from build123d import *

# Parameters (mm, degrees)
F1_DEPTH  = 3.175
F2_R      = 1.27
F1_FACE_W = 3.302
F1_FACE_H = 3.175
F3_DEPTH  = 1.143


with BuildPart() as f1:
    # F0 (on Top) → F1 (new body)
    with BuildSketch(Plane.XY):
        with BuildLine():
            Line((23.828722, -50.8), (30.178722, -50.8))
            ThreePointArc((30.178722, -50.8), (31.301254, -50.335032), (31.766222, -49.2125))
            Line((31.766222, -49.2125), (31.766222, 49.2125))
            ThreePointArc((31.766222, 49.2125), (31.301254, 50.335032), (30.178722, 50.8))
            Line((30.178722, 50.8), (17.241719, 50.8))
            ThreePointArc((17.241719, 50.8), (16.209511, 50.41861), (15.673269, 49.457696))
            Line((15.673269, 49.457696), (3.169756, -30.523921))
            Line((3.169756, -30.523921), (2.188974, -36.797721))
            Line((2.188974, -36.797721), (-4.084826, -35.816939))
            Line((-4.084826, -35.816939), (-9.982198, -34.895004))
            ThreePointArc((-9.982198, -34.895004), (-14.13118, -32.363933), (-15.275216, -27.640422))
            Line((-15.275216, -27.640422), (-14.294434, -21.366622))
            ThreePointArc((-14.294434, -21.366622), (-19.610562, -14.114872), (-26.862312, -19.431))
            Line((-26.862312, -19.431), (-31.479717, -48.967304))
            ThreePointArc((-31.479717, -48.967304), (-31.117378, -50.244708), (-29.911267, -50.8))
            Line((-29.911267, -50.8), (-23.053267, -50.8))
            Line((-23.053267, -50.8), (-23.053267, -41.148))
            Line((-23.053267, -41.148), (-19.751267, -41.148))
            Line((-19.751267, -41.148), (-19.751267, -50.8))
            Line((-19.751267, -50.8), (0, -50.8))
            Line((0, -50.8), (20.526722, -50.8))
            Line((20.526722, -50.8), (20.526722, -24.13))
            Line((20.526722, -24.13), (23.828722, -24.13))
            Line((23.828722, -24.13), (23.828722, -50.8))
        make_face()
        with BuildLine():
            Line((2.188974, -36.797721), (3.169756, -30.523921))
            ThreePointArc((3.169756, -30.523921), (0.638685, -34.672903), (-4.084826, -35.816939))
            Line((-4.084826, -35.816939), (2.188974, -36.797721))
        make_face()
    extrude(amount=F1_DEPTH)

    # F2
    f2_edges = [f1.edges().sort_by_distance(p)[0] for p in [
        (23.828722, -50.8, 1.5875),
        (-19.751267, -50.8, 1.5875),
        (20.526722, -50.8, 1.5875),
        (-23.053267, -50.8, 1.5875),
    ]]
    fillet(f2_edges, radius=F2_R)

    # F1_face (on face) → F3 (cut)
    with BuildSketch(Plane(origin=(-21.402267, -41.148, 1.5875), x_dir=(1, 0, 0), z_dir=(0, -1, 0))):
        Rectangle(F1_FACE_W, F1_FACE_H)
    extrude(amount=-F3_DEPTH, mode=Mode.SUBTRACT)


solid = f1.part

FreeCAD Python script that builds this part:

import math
import FreeCAD as App
import Part
import Sketcher

V = App.Vector
Q = App.Units.Quantity


def edges_at(feature, points):
    """Names of the edges that pass closest to the given points."""
    edges = feature.Shape.Edges
    near = lambda p: min(range(len(edges)), key=lambda i: edges[i].distToShape(Part.Vertex(*p))[0])
    return sorted({f"Edge{near(p) + 1}" for p in points})

doc = App.newDocument("Part")
body = doc.addObject("PartDesign::Body", "Body")

# Sketch on XY plane
sketch1 = body.newObject("Sketcher::SketchObject", "Sketch")
sketch1.AttachmentSupport = (doc.getObject("XY_Plane"), [""])
sketch1.MapMode = "FlatFace"
sketch1.addGeometry(Part.LineSegment(V(23.8, -50.8, 0), V(30.2, -50.8, 0)), False)
sketch1.addGeometry(Part.ArcOfCircle(Part.Circle(V(30.2, -49.2, 0), V(0, 0, 1), 1.6), math.radians(-90), math.radians(0)), False)
sketch1.addGeometry(Part.LineSegment(V(31.8, -49.2, 0), V(31.8, 49.2, 0)), False)
sketch1.addGeometry(Part.ArcOfCircle(Part.Circle(V(30.2, 49.2, 0), V(0, 0, 1), 1.6), math.radians(0), math.radians(90)), False)
sketch1.addGeometry(Part.LineSegment(V(30.2, 50.8, 0), V(17.2, 50.8, 0)), False)
sketch1.addGeometry(Part.ArcOfCircle(Part.Circle(V(17.2, 49.2, 0), V(0, 0, 1), 1.6), math.radians(90), math.radians(171)), False)
sketch1.addGeometry(Part.LineSegment(V(15.7, 49.5, 0), V(3.2, -30.5, 0)), False)
sketch1.addGeometry(Part.ArcOfCircle(Part.Circle(V(-3.1, -29.5, 0), V(0, 0, 1), 6.4), math.radians(-99), math.radians(-9)), False)
sketch1.addGeometry(Part.LineSegment(V(-4.1, -35.8, 0), V(-10, -34.9, 0)), False)
sketch1.addGeometry(Part.ArcOfCircle(Part.Circle(V(-9, -28.6, 0), V(0, 0, 1), 6.4), math.radians(171), math.radians(261)), False)
sketch1.addGeometry(Part.LineSegment(V(-15.3, -27.6, 0), V(-14.3, -21.4, 0)), False)
sketch1.addGeometry(Part.ArcOfCircle(Part.Circle(V(-20.6, -20.4, 0), V(0, 0, 1), 6.4), math.radians(-9), math.radians(171)), False)
sketch1.addGeometry(Part.LineSegment(V(-26.9, -19.4, 0), V(-31.5, -49, 0)), False)
sketch1.addGeometry(Part.ArcOfCircle(Part.Circle(V(-29.9, -49.2, 0), V(0, 0, 1), 1.6), math.radians(171), math.radians(270)), False)
sketch1.addGeometry(Part.LineSegment(V(-29.9, -50.8, 0), V(-23.1, -50.8, 0)), False)
sketch1.addGeometry(Part.LineSegment(V(-23.1, -50.8, 0), V(-23.1, -41.1, 0)), False)
sketch1.addGeometry(Part.LineSegment(V(-23.1, -41.1, 0), V(-19.8, -41.1, 0)), False)
sketch1.addGeometry(Part.LineSegment(V(-19.8, -41.1, 0), V(-19.8, -50.8, 0)), False)
sketch1.addGeometry(Part.LineSegment(V(-19.8, -50.8, 0), V(20.5, -50.8, 0)), False)
sketch1.addGeometry(Part.LineSegment(V(20.5, -50.8, 0), V(20.5, -24.1, 0)), False)
sketch1.addGeometry(Part.LineSegment(V(20.5, -24.1, 0), V(23.8, -24.1, 0)), False)
sketch1.addGeometry(Part.LineSegment(V(23.8, -24.1, 0), V(23.8, -50.8, 0)), False)
sketch1.addConstraint(Sketcher.Constraint("Tangent", 0, 2, 1, 1))
sketch1.addConstraint(Sketcher.Constraint("Tangent", 1, 2, 2, 1))
sketch1.addConstraint(Sketcher.Constraint("Tangent", 2, 2, 3, 1))
sketch1.addConstraint(Sketcher.Constraint("Tangent", 3, 2, 4, 1))
sketch1.addConstraint(Sketcher.Constraint("Tangent", 4, 2, 5, 1))
sketch1.addConstraint(Sketcher.Constraint("Tangent", 5, 2, 6, 1))
sketch1.addConstraint(Sketcher.Constraint("Tangent", 6, 2, 7, 2))
sketch1.addConstraint(Sketcher.Constraint("Tangent", 7, 1, 8, 1))
sketch1.addConstraint(Sketcher.Constraint("Tangent", 8, 2, 9, 2))
sketch1.addConstraint(Sketcher.Constraint("Tangent", 9, 1, 10, 1))
sketch1.addConstraint(Sketcher.Constraint("Coincident", 10, 2, 11, 1))
sketch1.addConstraint(Sketcher.Constraint("Coincident", 11, 2, 12, 1))
sketch1.addConstraint(Sketcher.Constraint("Tangent", 12, 2, 13, 1))
sketch1.addConstraint(Sketcher.Constraint("Tangent", 13, 2, 14, 1))
sketch1.addConstraint(Sketcher.Constraint("Coincident", 14, 2, 15, 1))
sketch1.addConstraint(Sketcher.Constraint("Coincident", 15, 2, 16, 1))
sketch1.addConstraint(Sketcher.Constraint("Coincident", 16, 2, 17, 1))
sketch1.addConstraint(Sketcher.Constraint("Coincident", 17, 2, 18, 1))
sketch1.addConstraint(Sketcher.Constraint("Coincident", 18, 2, 19, 1))
sketch1.addConstraint(Sketcher.Constraint("Coincident", 19, 2, 20, 1))
sketch1.addConstraint(Sketcher.Constraint("Coincident", 20, 2, 21, 1))
sketch1.addConstraint(Sketcher.Constraint("Coincident", 21, 2, 0, 1))
sketch1.addConstraint(Sketcher.Constraint("Horizontal", 0))
sketch1.addConstraint(Sketcher.Constraint("Vertical", 2))
sketch1.addConstraint(Sketcher.Constraint("Horizontal", 4))
sketch1.addConstraint(Sketcher.Constraint("Horizontal", 14))
sketch1.addConstraint(Sketcher.Constraint("Vertical", 15))
sketch1.addConstraint(Sketcher.Constraint("Horizontal", 16))
sketch1.addConstraint(Sketcher.Constraint("Vertical", 17))
sketch1.addConstraint(Sketcher.Constraint("Horizontal", 18))
sketch1.addConstraint(Sketcher.Constraint("Vertical", 19))
sketch1.addConstraint(Sketcher.Constraint("Horizontal", 20))
sketch1.addConstraint(Sketcher.Constraint("Vertical", 21))
sketch1.addConstraint(Sketcher.Constraint("Equal", 1, 3))
sketch1.addConstraint(Sketcher.Constraint("Equal", 3, 5))
sketch1.addConstraint(Sketcher.Constraint("Equal", 7, 9))
sketch1.addConstraint(Sketcher.Constraint("Equal", 3, 13))
sketch1.addConstraint(Sketcher.Constraint("Perpendicular", 6, 8))
sketch1.addConstraint(Sketcher.Constraint("Perpendicular", 8, 10))
sketch1.addConstraint(Sketcher.Constraint("Parallel", 10, 12))
sketch1.addConstraint(Sketcher.Constraint("Horizontal", 1, 3, 13, 3))
sketch1.addConstraint(Sketcher.Constraint("Horizontal", 14, 2, 17, 2))
sketch1.addConstraint(Sketcher.Constraint("Equal", 16, 20))
sketch1.addConstraint(Sketcher.Constraint("Radius", 7, Q("0.25 in")))
sketch1.addConstraint(Sketcher.Constraint("DistanceY", 0, 2, -1, 1, Q("2 in")))
sketch1.addConstraint(Sketcher.Constraint("DistanceY", -1, 1, 3, 2, Q("2 in")))
sketch1.addConstraint(Sketcher.Constraint("Radius", 1, Q("0.0625 in")))
sketch1.addConstraint(Sketcher.Constraint("DistanceX", 0, 1, 0, 2, Q("0.25 in")))
sketch1.addConstraint(Sketcher.Constraint("DistanceX", 14, 1, 14, 2, Q("0.27 in")))
sketch1.addConstraint(Sketcher.Constraint("DistanceX", 16, 1, 16, 2, Q("0.13 in")))
sketch1.addConstraint(Sketcher.Constraint("DistanceY", 15, 1, 15, 2, Q("0.38 in")))
sketch1.addConstraint(Sketcher.Constraint("DistanceY", 19, 1, 19, 2, Q("1.05 in")))
sketch1.addConstraint(Sketcher.Constraint("Distance", 10, Q("0.25 in")))
sketch1.addConstraint(Sketcher.Constraint("Distance", 8, Q("0.235 in")))
sketch1.addConstraint(Sketcher.Constraint("DistanceX", 8, 2, -1, 1, Q("0.3929999 in")))
sketch1.addConstraint(Sketcher.Constraint("DistanceY", 11, 2, -1, 1, Q("0.765 in")))
sketch1.addConstraint(Sketcher.Constraint("Radius", 11, Q("6.35803 mm")))
sketch1.addConstraint(Sketcher.Constraint("DistanceX", 7, 3, 6, 2, Q("0.247 in")))
sketch1.addConstraint(Sketcher.Constraint("DistanceX", 18, 1, 18, 2, Q("40.277989 mm")))
sketch1.addConstraint(Sketcher.Constraint("DistanceY", 12, 2, 8, 2, Q("14.0723 mm")))
sketch1.addConstraint(Sketcher.Constraint("DistanceY", 11, 3, -1, 1, Q("20.398811 mm")))
pad1 = body.newObject("PartDesign::Pad", "Pad")
pad1.Profile = sketch1
pad1.Length = Q("0.125 in")
doc.recompute()

fillet = body.newObject("PartDesign::Fillet", "Fillet")
fillet.Base = (pad1, edges_at(pad1, [
    (23.829, -50.8, 1.587),
    (-19.751, -50.8, 1.587),
    (20.527, -50.8, 1.587),
    (-23.053, -50.8, 1.587),
]))
fillet.Radius = Q("0.05 in")

# Sketch on XZ plane
sketch2 = body.newObject("Sketcher::SketchObject", "Sketch001")
sketch2.AttachmentSupport = (doc.getObject("XZ_Plane"), [""])
sketch2.MapMode = "FlatFace"
sketch2.AttachmentOffset = App.Placement(V(0, 0, 1.62 * 25.4), App.Rotation())
sketch2.addGeometry(Part.LineSegment(V(-23.1, 3.2, 0), V(-23.1, 0, 0)), False)
sketch2.addGeometry(Part.LineSegment(V(-23.1, 0, 0), V(-19.8, 0, 0)), False)
sketch2.addGeometry(Part.LineSegment(V(-19.8, 0, 0), V(-19.8, 3.2, 0)), False)
sketch2.addGeometry(Part.LineSegment(V(-19.8, 3.2, 0), V(-23.1, 3.2, 0)), False)
sketch2.addConstraint(Sketcher.Constraint("Coincident", 0, 2, 1, 1))
sketch2.addConstraint(Sketcher.Constraint("Coincident", 1, 2, 2, 1))
sketch2.addConstraint(Sketcher.Constraint("Coincident", 2, 2, 3, 1))
sketch2.addConstraint(Sketcher.Constraint("Coincident", 3, 2, 0, 1))
sketch2.addConstraint(Sketcher.Constraint("Vertical", 0))
sketch2.addConstraint(Sketcher.Constraint("Horizontal", 1))
sketch2.addConstraint(Sketcher.Constraint("Vertical", 2))
sketch2.addConstraint(Sketcher.Constraint("Horizontal", 3))
sketch2.addConstraint(Sketcher.Constraint("PointOnObject", 0, 2, -1))
sketch2.addConstraint(Sketcher.Constraint("DistanceX", 1, 1, 1, 2, Q("0.13 in")))
sketch2.addConstraint(Sketcher.Constraint("DistanceY", 0, 2, 0, 1, Q("0.125 in")))
sketch2.addConstraint(Sketcher.Constraint("DistanceX", 0, 2, -1, 1, Q("23.053267 mm")))
pocket1 = body.newObject("PartDesign::Pocket", "Pocket")
pocket1.Profile = sketch2
pocket1.Length = Q("0.045 in")

doc.recompute()
